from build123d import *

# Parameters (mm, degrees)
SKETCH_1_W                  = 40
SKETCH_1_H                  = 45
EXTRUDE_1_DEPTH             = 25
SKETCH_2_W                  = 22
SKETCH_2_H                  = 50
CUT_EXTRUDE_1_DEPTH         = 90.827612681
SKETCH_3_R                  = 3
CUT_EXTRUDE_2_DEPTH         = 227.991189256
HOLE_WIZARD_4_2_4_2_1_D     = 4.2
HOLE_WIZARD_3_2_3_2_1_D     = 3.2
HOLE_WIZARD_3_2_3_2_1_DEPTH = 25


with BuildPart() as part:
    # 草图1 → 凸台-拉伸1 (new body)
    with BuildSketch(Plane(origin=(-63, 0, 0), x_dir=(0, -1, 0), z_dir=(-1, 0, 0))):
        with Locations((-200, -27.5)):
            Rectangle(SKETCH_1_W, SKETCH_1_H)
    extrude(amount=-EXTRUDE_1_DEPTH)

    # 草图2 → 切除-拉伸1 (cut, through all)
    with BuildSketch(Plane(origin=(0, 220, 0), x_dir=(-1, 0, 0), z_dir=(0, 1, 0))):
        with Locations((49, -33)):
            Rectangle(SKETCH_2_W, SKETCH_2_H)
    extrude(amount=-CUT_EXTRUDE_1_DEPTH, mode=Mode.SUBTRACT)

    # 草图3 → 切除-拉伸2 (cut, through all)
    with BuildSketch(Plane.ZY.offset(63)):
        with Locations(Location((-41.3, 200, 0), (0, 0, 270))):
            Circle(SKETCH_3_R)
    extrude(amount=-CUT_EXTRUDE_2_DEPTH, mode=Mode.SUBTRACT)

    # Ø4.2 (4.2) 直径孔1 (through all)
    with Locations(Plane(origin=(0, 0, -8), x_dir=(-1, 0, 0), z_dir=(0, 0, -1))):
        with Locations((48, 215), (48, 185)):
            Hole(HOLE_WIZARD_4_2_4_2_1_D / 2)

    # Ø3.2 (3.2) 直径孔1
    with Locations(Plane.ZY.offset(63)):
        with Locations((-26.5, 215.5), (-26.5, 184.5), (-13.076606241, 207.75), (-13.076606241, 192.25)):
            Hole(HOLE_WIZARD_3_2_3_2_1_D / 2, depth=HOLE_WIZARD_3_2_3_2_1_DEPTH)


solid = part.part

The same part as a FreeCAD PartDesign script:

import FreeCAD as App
import Part
import Sketcher
Q = App.Units.Quantity

doc = App.newDocument("Part")
body = doc.addObject("PartDesign::Body", "Body")

sketch1 = body.newObject("Sketcher::SketchObject", "Sketch")
sketch1.AttachmentSupport = (doc.getObject("YZ_Plane"), [""])
sketch1.MapMode = "FlatFace"
sketch1.AttachmentOffset = App.Placement(App.Vector(0, 0, -63), App.Rotation())
sketch1.addGeometry([
    Part.LineSegment(App.Vector(220, -5, 0), App.Vector(220, -50, 0)),
    Part.LineSegment(App.Vector(220, -50, 0), App.Vector(180, -50, 0)),
    Part.LineSegment(App.Vector(180, -50, 0), App.Vector(180, -5, 0)),
    Part.LineSegment(App.Vector(180, -5, 0), App.Vector(220, -5, 0)),
], False)
sketch1.addConstraint([
    Sketcher.Constraint("Coincident", 0, 2, 1, 1),
    Sketcher.Constraint("Coincident", 1, 2, 2, 1),
    Sketcher.Constraint("Coincident", 2, 2, 3, 1),
    Sketcher.Constraint("Coincident", 3, 2, 0, 1),
    Sketcher.Constraint("Vertical", 0),
    Sketcher.Constraint("Horizontal", 1),
    Sketcher.Constraint("Vertical", 2),
    Sketcher.Constraint("Horizontal", 3),
    Sketcher.Constraint("DistanceX", 1, 2, 1, 1, Q("40 mm")),
    Sketcher.Constraint("DistanceY", 0, 2, 0, 1, Q("45 mm")),
    Sketcher.Constraint("DistanceX", -1, 1, 0, 2, Q("220 mm")),
    Sketcher.Constraint("DistanceY", 0, 2, -1, 1, Q("50 mm")),
])
pad1 = body.newObject("PartDesign::Pad", "Pad")
pad1.Profile = sketch1
pad1.Length = 25

sketch2 = body.newObject("Sketcher::SketchObject", "Sketch001")
sketch2.AttachmentSupport = (doc.getObject("XZ_Plane"), [""])
sketch2.MapMode = "FlatFace"
sketch2.AttachmentOffset = App.Placement(App.Vector(0, 0, -220), App.Rotation())
sketch2.addGeometry([
    Part.LineSegment(App.Vector(-38, -8, 0), App.Vector(-38, -58, 0)),
    Part.LineSegment(App.Vector(-38, -58, 0), App.Vector(-60, -58, 0)),
    Part.LineSegment(App.Vector(-60, -58, 0), App.Vector(-60, -8, 0)),
    Part.LineSegment(App.Vector(-60, -8, 0), App.Vector(-38, -8, 0)),
], False)
sketch2.addConstraint([
    Sketcher.Constraint("Coincident", 0, 2, 1, 1),
    Sketcher.Constraint("Coincident", 1, 2, 2, 1),
    Sketcher.Constraint("Coincident", 2, 2, 3, 1),
    Sketcher.Constraint("Coincident", 3, 2, 0, 1),
    Sketcher.Constraint("Vertical", 0),
    Sketcher.Constraint("Horizontal", 1),
    Sketcher.Constraint("Vertical", 2),
    Sketcher.Constraint("Horizontal", 3),
    Sketcher.Constraint("DistanceX", 1, 2, 1, 1, Q("22 mm")),
    Sketcher.Constraint("DistanceY", 0, 2, 0, 1, Q("50 mm")),
    Sketcher.Constraint("DistanceX", 0, 2, -1, 1, Q("38 mm")),
    Sketcher.Constraint("DistanceY", 0, 2, -1, 1, Q("58 mm")),
])
pocket1 = body.newObject("PartDesign::Pocket", "Pocket")
pocket1.Profile = sketch2
pocket1.Type = "ThroughAll"
pocket1.Reversed = True

sketch3 = body.newObject("Sketcher::SketchObject", "Sketch002")
sketch3.AttachmentSupport = (doc.getObject("YZ_Plane"), [""])
sketch3.MapMode = "FlatFace"
sketch3.AttachmentOffset = App.Placement(App.Vector(0, 0, -63), App.Rotation())
sketch3.addGeometry(Part.Circle(App.Vector(200, -41.3, 0), App.Vector(0, 0, 1), 3), False)
sketch3.addConstraint([
    Sketcher.Constraint("Diameter", 0, Q("6 mm")),
    Sketcher.Constraint("DistanceX", -1, 1, 0, 3, Q("200 mm")),
    Sketcher.Constraint("DistanceY", 0, 3, -1, 1, Q("41.3 mm")),
])
pocket2 = body.newObject("PartDesign::Pocket", "Pocket001")
pocket2.Profile = sketch3
pocket2.Type = "ThroughAll"
pocket2.Reversed = True

sketch4 = body.newObject("Sketcher::SketchObject", "Sketch003")
sketch4.AttachmentSupport = (doc.getObject("XY_Plane"), [""])
sketch4.MapMode = "FlatFace"
sketch4.AttachmentOffset = App.Placement(App.Vector(0, 0, -8), App.Rotation())
sketch4.addGeometry([
    Part.Circle(App.Vector(-48, 215, 0), App.Vector(0, 0, 1), 2.1),
    Part.Circle(App.Vector(-48, 185, 0), App.Vector(0, 0, 1), 2.1),
], False)
sketch4.addConstraint([
    Sketcher.Constraint("Equal", 0, 1),
    Sketcher.Constraint("Vertical", 0, 3, 1, 3),
    Sketcher.Constraint("Diameter", 0, Q("4.2 mm")),
    Sketcher.Constraint("DistanceX", 0, 3, -1, 1, Q("48 mm")),
    Sketcher.Constraint("DistanceY", -1, 1, 0, 3, Q("215 mm")),
    Sketcher.Constraint("DistanceY", -1, 1, 1, 3, Q("185 mm")),
])
doc.recompute()
hole = body.newObject("PartDesign::Hole", "Hole")
hole.Profile = sketch4
hole.ThreadType = "None"
hole.Diameter = 4.2
hole.DepthType = "ThroughAll"
hole.Reversed = True

sketch5 = body.newObject("Sketcher::SketchObject", "Sketch004")
sketch5.AttachmentSupport = (doc.getObject("YZ_Plane"), [""])
sketch5.MapMode = "FlatFace"
sketch5.AttachmentOffset = App.Placement(App.Vector(0, 0, -63), App.Rotation())
sketch5.addGeometry([
    Part.Circle(App.Vector(215.5, -26.5, 0), App.Vector(0, 0, 1), 1.6),
    Part.Circle(App.Vector(184.5, -26.5, 0), App.Vector(0, 0, 1), 1.6),
    Part.Circle(App.Vector(207.75, -13.076606, 0), App.Vector(0, 0, 1), 1.6),
    Part.Circle(App.Vector(192.25, -13.076606, 0), App.Vector(0, 0, 1), 1.6),
], False)
sketch5.addConstraint([
    Sketcher.Constraint("Equal", 0, 1),
    Sketcher.Constraint("Equal", 1, 2),
    Sketcher.Constraint("Equal", 2, 3),
    Sketcher.Constraint("Horizontal", 0, 3, 1, 3),
    Sketcher.Constraint("Horizontal", 2, 3, 3, 3),
    Sketcher.Constraint("Diameter", 0, Q("3.2 mm")),
    Sketcher.Constraint("DistanceX", 1, 3, 0, 3, Q("31 mm")),
    Sketcher.Constraint("DistanceX", -1, 1, 0, 3, Q("215.5 mm")),
    Sketcher.Constraint("DistanceY", 0, 3, -1, 1, Q("26.5 mm")),
    Sketcher.Constraint("DistanceX", 3, 3, 2, 3, Q("15.5 mm")),
    Sketcher.Constraint("DistanceX", -1, 1, 2, 3, Q("207.75 mm")),
    Sketcher.Constraint("DistanceY", 2, 3, -1, 1, Q("13.076606 mm")),
])
doc.recompute()
hole2 = body.newObject("PartDesign::Hole", "Hole001")
hole2.Profile = sketch5
hole2.ThreadType = "None"
hole2.Diameter = 3.2
hole2.DepthType = "Dimension"
hole2.Depth = 25
hole2.DrillPoint = "Flat"
hole2.Reversed = True

doc.recompute()
